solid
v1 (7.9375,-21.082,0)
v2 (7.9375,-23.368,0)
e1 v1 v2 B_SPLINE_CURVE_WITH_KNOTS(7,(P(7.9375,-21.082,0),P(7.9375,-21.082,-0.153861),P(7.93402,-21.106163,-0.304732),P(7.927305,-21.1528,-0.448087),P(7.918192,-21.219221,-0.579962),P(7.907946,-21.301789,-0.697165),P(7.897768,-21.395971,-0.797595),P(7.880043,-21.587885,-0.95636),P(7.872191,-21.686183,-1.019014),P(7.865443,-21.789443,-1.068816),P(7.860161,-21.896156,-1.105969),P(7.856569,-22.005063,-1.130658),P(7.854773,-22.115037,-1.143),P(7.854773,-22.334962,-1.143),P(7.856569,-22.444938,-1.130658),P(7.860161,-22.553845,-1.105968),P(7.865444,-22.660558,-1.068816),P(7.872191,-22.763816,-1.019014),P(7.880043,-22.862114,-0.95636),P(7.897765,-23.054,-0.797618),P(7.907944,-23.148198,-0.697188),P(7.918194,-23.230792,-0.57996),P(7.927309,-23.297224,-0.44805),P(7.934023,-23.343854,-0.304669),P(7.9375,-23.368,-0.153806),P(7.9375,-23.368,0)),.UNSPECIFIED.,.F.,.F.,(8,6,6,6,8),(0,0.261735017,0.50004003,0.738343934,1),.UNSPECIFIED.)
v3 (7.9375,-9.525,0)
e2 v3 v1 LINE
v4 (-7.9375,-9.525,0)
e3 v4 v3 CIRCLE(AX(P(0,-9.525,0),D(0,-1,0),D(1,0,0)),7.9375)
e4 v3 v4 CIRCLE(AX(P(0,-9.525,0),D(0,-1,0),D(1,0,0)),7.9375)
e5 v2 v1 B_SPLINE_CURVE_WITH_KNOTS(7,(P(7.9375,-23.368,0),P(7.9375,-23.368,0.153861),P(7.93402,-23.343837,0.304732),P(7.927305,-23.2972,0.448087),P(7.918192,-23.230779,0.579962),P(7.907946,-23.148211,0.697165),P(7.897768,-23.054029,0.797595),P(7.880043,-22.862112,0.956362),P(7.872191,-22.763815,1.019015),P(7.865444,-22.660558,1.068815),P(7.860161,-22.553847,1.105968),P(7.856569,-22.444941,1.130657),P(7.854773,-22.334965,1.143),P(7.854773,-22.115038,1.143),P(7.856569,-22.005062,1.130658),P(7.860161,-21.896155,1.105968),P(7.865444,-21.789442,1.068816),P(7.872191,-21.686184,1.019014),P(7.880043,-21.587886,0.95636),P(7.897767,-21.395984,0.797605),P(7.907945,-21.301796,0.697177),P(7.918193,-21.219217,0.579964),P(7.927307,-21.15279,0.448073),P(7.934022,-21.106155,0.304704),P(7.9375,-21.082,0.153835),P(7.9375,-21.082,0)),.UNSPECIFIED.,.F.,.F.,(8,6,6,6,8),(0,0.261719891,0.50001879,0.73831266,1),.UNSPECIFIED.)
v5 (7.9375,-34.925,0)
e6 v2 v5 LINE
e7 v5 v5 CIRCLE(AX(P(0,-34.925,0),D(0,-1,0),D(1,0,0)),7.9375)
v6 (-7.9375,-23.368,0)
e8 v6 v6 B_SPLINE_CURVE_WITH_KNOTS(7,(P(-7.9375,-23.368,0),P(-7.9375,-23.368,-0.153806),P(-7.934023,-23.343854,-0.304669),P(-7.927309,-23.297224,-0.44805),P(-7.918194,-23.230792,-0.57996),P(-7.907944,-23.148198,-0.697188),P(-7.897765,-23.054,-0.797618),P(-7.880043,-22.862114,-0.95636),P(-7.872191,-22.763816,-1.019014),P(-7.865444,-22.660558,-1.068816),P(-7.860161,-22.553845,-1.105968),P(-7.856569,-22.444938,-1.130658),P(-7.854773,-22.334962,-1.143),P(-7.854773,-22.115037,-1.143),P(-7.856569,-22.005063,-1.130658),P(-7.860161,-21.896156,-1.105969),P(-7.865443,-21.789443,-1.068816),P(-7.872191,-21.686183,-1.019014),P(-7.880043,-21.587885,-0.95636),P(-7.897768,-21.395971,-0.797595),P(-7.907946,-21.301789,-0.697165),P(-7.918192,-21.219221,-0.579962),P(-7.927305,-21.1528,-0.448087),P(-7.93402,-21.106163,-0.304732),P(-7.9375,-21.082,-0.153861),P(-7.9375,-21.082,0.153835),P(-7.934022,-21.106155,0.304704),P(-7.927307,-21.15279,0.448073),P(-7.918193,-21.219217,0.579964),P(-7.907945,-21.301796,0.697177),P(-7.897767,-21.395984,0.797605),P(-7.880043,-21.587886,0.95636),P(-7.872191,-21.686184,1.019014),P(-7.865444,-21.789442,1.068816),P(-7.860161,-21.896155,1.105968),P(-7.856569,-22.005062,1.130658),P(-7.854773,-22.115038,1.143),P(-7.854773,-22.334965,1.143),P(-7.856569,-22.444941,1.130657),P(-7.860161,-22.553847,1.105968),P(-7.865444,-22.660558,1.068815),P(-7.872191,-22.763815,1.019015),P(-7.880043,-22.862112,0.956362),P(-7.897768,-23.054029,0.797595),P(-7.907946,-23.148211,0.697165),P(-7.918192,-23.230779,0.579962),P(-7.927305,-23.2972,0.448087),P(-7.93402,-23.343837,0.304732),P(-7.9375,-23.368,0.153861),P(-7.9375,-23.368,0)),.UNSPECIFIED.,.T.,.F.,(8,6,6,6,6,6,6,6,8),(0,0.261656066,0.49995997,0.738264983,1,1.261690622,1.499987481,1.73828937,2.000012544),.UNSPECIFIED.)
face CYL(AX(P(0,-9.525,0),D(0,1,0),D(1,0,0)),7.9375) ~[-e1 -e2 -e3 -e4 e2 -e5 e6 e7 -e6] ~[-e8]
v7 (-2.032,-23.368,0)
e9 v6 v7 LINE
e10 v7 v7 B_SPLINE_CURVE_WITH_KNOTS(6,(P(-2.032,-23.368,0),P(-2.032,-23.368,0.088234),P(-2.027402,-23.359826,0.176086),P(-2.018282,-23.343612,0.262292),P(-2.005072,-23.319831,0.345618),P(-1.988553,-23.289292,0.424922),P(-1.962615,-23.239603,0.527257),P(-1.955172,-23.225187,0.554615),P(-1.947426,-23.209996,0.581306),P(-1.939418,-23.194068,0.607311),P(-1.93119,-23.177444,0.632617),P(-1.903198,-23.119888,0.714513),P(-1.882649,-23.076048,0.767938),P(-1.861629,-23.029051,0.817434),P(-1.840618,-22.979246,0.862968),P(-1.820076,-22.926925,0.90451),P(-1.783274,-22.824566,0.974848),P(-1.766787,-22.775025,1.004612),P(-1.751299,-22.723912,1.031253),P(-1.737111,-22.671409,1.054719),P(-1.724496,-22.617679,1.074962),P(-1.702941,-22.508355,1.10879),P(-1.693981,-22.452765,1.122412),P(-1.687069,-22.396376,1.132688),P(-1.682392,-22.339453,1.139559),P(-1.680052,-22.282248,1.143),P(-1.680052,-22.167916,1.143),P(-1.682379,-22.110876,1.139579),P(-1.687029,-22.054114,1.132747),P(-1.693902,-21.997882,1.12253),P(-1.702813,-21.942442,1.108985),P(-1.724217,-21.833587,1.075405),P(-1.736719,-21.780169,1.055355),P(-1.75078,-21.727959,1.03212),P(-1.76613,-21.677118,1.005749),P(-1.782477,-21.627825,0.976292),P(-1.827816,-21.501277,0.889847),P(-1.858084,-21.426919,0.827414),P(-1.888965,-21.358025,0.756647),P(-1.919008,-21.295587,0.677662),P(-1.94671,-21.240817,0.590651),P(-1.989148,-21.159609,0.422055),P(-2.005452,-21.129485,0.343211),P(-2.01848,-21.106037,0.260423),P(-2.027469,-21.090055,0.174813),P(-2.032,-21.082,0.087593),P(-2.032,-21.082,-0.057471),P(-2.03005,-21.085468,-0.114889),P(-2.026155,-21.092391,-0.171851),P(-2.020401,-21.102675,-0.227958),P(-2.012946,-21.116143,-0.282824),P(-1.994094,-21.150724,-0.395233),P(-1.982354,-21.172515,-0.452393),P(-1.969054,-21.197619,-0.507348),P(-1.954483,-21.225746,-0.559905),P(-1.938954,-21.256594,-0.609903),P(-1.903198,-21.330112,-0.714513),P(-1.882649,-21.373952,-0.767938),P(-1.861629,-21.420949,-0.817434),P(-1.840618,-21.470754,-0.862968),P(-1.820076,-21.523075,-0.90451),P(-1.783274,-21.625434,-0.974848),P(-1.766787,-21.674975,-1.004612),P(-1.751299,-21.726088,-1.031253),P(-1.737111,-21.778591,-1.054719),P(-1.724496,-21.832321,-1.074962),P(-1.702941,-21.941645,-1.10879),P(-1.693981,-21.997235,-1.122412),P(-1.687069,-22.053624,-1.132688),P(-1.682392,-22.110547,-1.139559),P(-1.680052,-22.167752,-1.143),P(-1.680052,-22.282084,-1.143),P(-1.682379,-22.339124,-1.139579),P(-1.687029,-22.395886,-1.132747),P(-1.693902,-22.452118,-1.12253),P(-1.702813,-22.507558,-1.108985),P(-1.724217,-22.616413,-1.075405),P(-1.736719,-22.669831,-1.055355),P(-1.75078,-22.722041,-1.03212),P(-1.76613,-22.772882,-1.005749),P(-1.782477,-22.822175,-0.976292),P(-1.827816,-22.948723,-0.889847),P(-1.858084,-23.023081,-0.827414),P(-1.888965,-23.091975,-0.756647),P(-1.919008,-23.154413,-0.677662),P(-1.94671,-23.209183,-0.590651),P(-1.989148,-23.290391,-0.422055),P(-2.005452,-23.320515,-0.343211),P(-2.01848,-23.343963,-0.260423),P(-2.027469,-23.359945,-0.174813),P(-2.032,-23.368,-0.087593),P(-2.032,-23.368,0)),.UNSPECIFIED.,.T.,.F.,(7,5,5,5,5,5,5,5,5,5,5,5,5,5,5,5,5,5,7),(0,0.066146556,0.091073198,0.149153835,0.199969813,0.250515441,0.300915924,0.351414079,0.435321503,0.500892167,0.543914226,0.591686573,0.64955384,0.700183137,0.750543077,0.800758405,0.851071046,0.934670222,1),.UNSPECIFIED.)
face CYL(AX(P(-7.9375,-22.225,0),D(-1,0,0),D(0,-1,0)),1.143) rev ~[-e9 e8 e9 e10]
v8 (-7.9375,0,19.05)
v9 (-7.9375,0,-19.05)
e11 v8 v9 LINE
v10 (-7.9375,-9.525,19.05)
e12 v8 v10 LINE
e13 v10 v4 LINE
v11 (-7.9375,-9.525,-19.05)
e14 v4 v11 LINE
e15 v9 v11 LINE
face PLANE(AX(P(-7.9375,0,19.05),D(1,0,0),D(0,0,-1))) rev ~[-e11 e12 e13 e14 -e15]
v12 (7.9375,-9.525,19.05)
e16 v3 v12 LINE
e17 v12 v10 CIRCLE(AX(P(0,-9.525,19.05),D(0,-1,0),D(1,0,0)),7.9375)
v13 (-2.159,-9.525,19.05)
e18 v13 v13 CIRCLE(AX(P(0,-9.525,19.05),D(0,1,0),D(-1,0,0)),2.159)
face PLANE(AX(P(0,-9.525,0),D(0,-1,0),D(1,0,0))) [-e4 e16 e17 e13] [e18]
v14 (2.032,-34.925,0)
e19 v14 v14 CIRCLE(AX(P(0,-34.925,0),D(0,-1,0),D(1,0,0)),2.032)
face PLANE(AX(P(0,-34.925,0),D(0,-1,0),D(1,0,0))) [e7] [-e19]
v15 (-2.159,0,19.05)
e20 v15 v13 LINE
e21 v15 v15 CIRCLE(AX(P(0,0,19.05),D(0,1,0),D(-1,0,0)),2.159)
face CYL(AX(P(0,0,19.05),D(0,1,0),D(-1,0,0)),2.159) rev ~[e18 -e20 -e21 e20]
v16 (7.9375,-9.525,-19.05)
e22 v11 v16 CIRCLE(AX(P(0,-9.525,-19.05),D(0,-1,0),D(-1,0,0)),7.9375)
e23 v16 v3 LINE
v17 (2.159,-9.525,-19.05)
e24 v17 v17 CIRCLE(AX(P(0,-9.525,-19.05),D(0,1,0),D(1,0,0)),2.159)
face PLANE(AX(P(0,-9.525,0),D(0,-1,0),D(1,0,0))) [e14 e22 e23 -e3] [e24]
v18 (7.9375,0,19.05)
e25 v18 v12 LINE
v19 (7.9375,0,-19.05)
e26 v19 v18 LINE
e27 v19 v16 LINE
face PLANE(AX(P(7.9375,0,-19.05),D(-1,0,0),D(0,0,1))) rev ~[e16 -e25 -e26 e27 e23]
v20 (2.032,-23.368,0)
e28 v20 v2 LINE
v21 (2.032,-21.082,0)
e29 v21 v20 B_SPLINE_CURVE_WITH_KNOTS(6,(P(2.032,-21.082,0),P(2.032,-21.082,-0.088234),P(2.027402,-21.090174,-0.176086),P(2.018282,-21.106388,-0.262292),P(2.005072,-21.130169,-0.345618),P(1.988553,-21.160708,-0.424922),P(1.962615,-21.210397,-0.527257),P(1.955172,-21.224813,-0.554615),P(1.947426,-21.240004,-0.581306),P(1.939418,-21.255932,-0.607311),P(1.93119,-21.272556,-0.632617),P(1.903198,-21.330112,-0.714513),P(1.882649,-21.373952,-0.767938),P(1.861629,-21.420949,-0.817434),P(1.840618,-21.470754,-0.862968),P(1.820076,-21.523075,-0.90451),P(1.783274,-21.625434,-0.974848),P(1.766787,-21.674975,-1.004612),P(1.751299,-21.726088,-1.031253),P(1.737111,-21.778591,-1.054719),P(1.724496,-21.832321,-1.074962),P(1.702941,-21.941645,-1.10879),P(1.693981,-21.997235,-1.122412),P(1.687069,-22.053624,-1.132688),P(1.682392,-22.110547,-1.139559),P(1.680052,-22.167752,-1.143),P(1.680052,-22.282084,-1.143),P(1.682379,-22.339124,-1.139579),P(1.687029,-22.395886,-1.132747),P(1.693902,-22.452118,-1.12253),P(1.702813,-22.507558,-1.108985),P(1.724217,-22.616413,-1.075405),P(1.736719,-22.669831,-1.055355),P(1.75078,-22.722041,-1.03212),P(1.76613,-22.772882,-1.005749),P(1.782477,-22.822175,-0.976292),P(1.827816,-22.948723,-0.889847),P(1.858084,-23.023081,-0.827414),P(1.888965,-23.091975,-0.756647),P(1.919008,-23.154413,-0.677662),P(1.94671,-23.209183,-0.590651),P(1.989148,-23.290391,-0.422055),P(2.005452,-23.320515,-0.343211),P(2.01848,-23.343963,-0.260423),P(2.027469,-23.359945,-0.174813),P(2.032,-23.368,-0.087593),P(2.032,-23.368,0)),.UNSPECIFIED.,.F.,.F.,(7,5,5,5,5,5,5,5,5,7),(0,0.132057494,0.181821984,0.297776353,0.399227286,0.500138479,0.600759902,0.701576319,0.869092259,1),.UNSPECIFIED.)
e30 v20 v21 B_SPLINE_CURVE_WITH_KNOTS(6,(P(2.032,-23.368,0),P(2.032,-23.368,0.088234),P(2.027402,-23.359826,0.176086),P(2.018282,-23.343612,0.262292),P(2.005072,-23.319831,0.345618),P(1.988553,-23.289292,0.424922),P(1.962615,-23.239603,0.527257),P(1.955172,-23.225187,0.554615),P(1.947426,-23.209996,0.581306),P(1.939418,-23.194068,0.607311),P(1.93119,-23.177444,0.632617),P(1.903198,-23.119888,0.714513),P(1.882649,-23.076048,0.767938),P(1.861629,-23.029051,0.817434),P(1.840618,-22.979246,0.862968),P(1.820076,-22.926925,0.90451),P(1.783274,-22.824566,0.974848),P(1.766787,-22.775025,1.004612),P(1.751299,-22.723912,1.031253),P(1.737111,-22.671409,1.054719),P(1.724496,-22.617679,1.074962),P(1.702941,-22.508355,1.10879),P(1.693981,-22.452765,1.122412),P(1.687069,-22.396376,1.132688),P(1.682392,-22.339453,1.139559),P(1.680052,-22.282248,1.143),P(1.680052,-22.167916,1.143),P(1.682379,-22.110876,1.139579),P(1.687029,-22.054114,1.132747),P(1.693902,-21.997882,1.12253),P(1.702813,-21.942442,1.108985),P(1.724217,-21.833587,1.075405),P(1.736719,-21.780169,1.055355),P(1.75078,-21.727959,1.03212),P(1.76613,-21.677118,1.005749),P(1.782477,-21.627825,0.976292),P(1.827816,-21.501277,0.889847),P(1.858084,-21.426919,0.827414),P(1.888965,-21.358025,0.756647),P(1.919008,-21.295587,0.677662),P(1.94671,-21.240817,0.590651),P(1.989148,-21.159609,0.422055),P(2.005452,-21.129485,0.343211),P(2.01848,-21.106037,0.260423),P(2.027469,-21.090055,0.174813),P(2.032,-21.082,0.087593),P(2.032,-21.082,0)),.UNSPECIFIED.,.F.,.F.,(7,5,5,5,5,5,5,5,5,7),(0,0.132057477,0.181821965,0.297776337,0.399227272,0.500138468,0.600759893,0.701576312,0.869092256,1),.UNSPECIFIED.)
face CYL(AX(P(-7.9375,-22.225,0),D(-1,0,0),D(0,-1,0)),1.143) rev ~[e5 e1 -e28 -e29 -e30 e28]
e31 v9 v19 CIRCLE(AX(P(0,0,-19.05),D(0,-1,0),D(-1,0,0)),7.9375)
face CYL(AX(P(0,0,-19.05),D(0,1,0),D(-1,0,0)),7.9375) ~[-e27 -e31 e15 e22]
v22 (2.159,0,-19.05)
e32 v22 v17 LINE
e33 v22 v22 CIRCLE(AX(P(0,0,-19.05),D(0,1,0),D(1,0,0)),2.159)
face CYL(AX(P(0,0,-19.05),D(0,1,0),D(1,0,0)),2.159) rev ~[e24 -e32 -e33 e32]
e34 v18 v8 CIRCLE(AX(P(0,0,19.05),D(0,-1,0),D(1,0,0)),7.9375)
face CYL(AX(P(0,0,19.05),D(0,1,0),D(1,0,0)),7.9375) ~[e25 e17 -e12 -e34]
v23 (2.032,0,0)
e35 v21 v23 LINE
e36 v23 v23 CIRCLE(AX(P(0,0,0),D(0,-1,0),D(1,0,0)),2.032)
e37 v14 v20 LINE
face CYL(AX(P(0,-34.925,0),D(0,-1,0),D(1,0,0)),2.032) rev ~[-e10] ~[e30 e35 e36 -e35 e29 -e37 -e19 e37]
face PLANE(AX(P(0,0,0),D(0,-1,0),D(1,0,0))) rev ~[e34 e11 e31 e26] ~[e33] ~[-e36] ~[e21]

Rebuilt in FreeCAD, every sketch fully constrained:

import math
import FreeCAD as App
import Part
import Sketcher
from FreeCAD import Vector
Q = App.Units.Quantity

doc = App.newDocument("Part")
params = doc.addObject("Spreadsheet::Sheet", "Params")
for row, (alias, value) in enumerate([
    ("sketch1_diameter", "0.17 in"),
    ("sketch1_height", "1.5 in"),
    ("sketch1_radius", "0.3125 in"),
    ("pad1_length", "0.375 in"),
    ("sketch2_diameter", "0.625 in"),
    ("pad2_length", "1 in"),
    ("sketch3_diameter", "0.16 in"),
    ("sketch4_diameter", "0.09 in"),
    ("pocket2_length", "1 in"),
], start=1):
    params.set(f"A{row}", alias)
    params.set(f"B{row}", "=" + value)
    params.setAlias(f"B{row}", alias)

body = doc.addObject("PartDesign::Body", "Body")

sketch1 = body.newObject("Sketcher::SketchObject", "Sketch")
sketch1.AttachmentSupport = (doc.getObject("XZ_Plane"), [""])
sketch1.MapMode = "FlatFace"
sketch1.addGeometry([
    Part.LineSegment(Vector(7.9375, -19.05, 0), Vector(7.9375, 19.05, 0)),
    Part.ArcOfCircle(Part.Circle(Vector(0, 19.05, 0), Vector(0, 0, 1), 7.9375), math.radians(0), math.radians(180)),
    Part.LineSegment(Vector(-7.9375, 19.05, 0), Vector(-7.9375, -19.05, 0)),
    Part.ArcOfCircle(Part.Circle(Vector(0, -19.05, 0), Vector(0, 0, 1), 7.9375), math.radians(180), math.radians(360)),
    Part.Circle(Vector(0, -19.05, 0), Vector(0, 0, 1), 2.159),
    Part.Circle(Vector(0, 19.05, 0), Vector(0, 0, 1), 2.159),
], False)
sketch1.addConstraint([
    Sketcher.Constraint("Tangent", 0, 2, 1, 1),
    Sketcher.Constraint("Tangent", 1, 2, 2, 1),
    Sketcher.Constraint("Tangent", 2, 2, 3, 1),
    Sketcher.Constraint("Tangent", 3, 2, 0, 1),
    Sketcher.Constraint("Vertical", 0),
    Sketcher.Constraint("Vertical", 2),
    Sketcher.Constraint("Coincident", 4, 3, 3, 3),
    Sketcher.Constraint("Coincident", 5, 3, 1, 3),
    Sketcher.Constraint("Equal", 4, 5),
    Sketcher.Constraint("Symmetric", 1, 3, 3, 3, -1, 1),
    Sketcher.Constraint("Diameter", 4, Q("0.17 in")),
    Sketcher.Constraint("DistanceY", 0, 1, 0, 2, Q("1.5 in")),
    Sketcher.Constraint("Radius", 1, Q("0.3125 in")),
])
sketch1.setExpression("Constraints[10]", "Params.sketch1_diameter")
sketch1.setExpression("Constraints[11]", "Params.sketch1_height")
sketch1.setExpression("Constraints[12]", "Params.sketch1_radius")
pad1 = body.newObject("PartDesign::Pad", "Pad")
pad1.Profile = sketch1
pad1.setExpression("Length", "Params.pad1_length")

sketch2 = body.newObject("Sketcher::SketchObject", "Sketch001")
sketch2.AttachmentSupport = (doc.getObject("XZ_Plane"), [""])
sketch2.MapMode = "FlatFace"
sketch2.AttachmentOffset = App.Placement(Vector(0, 0, 0.375 * 25.4), App.Rotation())
sketch2.addGeometry(Part.Circle(Vector(0, 0, 0), Vector(0, 0, 1), 7.9375), False)
sketch2.addConstraint([
    Sketcher.Constraint("Coincident", 0, 3, -1, 1),
    Sketcher.Constraint("Diameter", 0, Q("0.625 in")),
])
sketch2.setExpression("Constraints[1]", "Params.sketch2_diameter")
pad2 = body.newObject("PartDesign::Pad", "Pad001")
pad2.Profile = sketch2
pad2.setExpression("Length", "Params.pad2_length")

sketch3 = body.newObject("Sketcher::SketchObject", "Sketch002")
sketch3.AttachmentSupport = (doc.getObject("XZ_Plane"), [""])
sketch3.MapMode = "FlatFace"
sketch3.AttachmentOffset = App.Placement(Vector(0, 0, 1.375 * 25.4), App.Rotation())
sketch3.addGeometry(Part.Circle(Vector(0, 0, 0), Vector(0, 0, 1), 2.032), False)
sketch3.addConstraint([
    Sketcher.Constraint("Coincident", 0, 3, -1, 1),
    Sketcher.Constraint("Diameter", 0, Q("0.16 in")),
])
sketch3.setExpression("Constraints[1]", "Params.sketch3_diameter")
pocket1 = body.newObject("PartDesign::Pocket", "Pocket")
pocket1.Profile = sketch3
pocket1.Type = "ThroughAll"

sketch4 = body.newObject("Sketcher::SketchObject", "Sketch003")
sketch4.AttachmentSupport = (doc.getObject("YZ_Plane"), [""])
sketch4.MapMode = "FlatFace"
sketch4.AttachmentOffset = App.Placement(Vector(0, 0, -0.3125 * 25.4), App.Rotation())
sketch4.addGeometry(Part.Circle(Vector(-22.225, 0, 0), Vector(0, 0, 1), 1.143), False)
sketch4.addConstraint([
    Sketcher.Constraint("PointOnObject", 0, 3, -1),
    Sketcher.Constraint("Diameter", 0, Q("0.09 in")),
    Sketcher.Constraint("DistanceX", 0, 3, -1, 1, Q("0.875 in")),
])
sketch4.setExpression("Constraints[1]", "Params.sketch4_diameter")
pocket2 = body.newObject("PartDesign::Pocket", "Pocket001")
pocket2.Profile = sketch4
pocket2.setExpression("Length", "Params.pocket2_length")
pocket2.Reversed = True

doc.recompute()
